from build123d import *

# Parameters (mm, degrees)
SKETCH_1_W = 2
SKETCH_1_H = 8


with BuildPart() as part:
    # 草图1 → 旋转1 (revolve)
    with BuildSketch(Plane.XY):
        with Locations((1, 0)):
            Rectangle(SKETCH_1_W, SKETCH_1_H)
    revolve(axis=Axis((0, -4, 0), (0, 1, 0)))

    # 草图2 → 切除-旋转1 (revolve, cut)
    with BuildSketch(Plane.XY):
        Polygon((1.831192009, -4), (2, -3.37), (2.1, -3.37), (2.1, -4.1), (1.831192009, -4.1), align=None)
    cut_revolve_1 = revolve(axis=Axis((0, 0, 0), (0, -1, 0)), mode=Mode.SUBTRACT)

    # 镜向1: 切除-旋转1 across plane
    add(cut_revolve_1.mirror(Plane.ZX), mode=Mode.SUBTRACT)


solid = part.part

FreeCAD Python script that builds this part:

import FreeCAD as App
import Part
import Sketcher

V = App.Vector
Q = App.Units.Quantity


def add_polygon(sketch, points):
    """Adds a closed chain of lines whose ends are joined by coincident constraints."""
    first, n = sketch.GeometryCount, len(points)
    for a, b in zip(points, points[1:] + points[:1]):
        sketch.addGeometry(Part.LineSegment(App.Vector(*a, 0), App.Vector(*b, 0)), False)
    for i in range(n):
        sketch.addConstraint(Sketcher.Constraint("Coincident", first + i, 2, first + (i + 1) % n, 1))

doc = App.newDocument("Part")
params = doc.addObject("Spreadsheet::Sheet", "Params")
for row, (alias, value) in enumerate([
    ("sketch1_width", "2 mm"),
    ("sketch1_height", "8 mm"),
    ("revolution_angle", "360 deg"),
    ("sketch2_width", "0.1 mm"),
    ("sketch2_height", "0.73 mm"),
    ("groove_angle", "360 deg"),
], start=1):
    params.set(f"A{row}", alias)
    params.set(f"B{row}", "=" + value)
    params.setAlias(f"B{row}", alias)

body = doc.addObject("PartDesign::Body", "Body")

sketch1 = body.newObject("Sketcher::SketchObject", "Sketch")
sketch1.AttachmentSupport = (doc.getObject("XY_Plane"), [""])
sketch1.MapMode = "FlatFace"
add_polygon(sketch1, [(0, 4), (0, -4), (2, -4), (2, 4)])
sketch1.addConstraint(Sketcher.Constraint("Vertical", 0))
sketch1.addConstraint(Sketcher.Constraint("Horizontal", 1))
sketch1.addConstraint(Sketcher.Constraint("Vertical", 2))
sketch1.addConstraint(Sketcher.Constraint("Horizontal", 3))
sketch1.addConstraint(Sketcher.Constraint("Symmetric", 0, 2, 3, 2, -1, 1))
sketch1.addConstraint(Sketcher.Constraint("DistanceX", 1, 1, 1, 2, Q("2 mm")))
sketch1.addConstraint(Sketcher.Constraint("DistanceY", 0, 2, 0, 1, Q("8 mm")))
sketch1.setExpression("Constraints[9]", "Params.sketch1_width")
sketch1.setExpression("Constraints[10]", "Params.sketch1_height")
revolution = body.newObject("PartDesign::Revolution", "Revolution")
revolution.Profile = sketch1
revolution.ReferenceAxis = (sketch1, ["V_Axis"])
revolution.setExpression("Angle", "Params.revolution_angle")

sketch2 = body.newObject("Sketcher::SketchObject", "Sketch001")
sketch2.AttachmentSupport = (doc.getObject("XY_Plane"), [""])
sketch2.MapMode = "FlatFace"
add_polygon(sketch2, [(2, -3.37), (1.83, -4), (1.83, -4.1), (2.1, -4.1), (2.1, -3.37)])
sketch2.addConstraint(Sketcher.Constraint("Vertical", 1))
sketch2.addConstraint(Sketcher.Constraint("Horizontal", 2))
sketch2.addConstraint(Sketcher.Constraint("Vertical", 3))
sketch2.addConstraint(Sketcher.Constraint("Horizontal", 4))
sketch2.addConstraint(Sketcher.Constraint("Equal", 4, 1))
sketch2.addConstraint(Sketcher.Constraint("Angle", 0, Q("-105 deg")))
sketch2.addConstraint(Sketcher.Constraint("DistanceX", 4, 2, 4, 1, Q("0.1 mm")))
sketch2.addConstraint(Sketcher.Constraint("DistanceY", 0, 2, -1, 1, Q("4 mm")))
sketch2.addConstraint(Sketcher.Constraint("DistanceX", -1, 1, 4, 2, Q("2 mm")))
sketch2.addConstraint(Sketcher.Constraint("DistanceY", 3, 1, 3, 2, Q("0.73 mm")))
sketch2.setExpression("Constraints[11]", "Params.sketch2_width")
sketch2.setExpression("Constraints[14]", "Params.sketch2_height")
groove = body.newObject("PartDesign::Groove", "Groove")
groove.Profile = sketch2
groove.ReferenceAxis = (sketch2, ["V_Axis"])
groove.setExpression("Angle", "Params.groove_angle")
doc.recompute()

mirrored = body.newObject("PartDesign::Mirrored", "Mirrored")
mirrored.Originals = [groove]
mirrored.MirrorPlane = (doc.getObject("XZ_Plane"), [""])
body.Tip = mirrored

doc.recompute()
